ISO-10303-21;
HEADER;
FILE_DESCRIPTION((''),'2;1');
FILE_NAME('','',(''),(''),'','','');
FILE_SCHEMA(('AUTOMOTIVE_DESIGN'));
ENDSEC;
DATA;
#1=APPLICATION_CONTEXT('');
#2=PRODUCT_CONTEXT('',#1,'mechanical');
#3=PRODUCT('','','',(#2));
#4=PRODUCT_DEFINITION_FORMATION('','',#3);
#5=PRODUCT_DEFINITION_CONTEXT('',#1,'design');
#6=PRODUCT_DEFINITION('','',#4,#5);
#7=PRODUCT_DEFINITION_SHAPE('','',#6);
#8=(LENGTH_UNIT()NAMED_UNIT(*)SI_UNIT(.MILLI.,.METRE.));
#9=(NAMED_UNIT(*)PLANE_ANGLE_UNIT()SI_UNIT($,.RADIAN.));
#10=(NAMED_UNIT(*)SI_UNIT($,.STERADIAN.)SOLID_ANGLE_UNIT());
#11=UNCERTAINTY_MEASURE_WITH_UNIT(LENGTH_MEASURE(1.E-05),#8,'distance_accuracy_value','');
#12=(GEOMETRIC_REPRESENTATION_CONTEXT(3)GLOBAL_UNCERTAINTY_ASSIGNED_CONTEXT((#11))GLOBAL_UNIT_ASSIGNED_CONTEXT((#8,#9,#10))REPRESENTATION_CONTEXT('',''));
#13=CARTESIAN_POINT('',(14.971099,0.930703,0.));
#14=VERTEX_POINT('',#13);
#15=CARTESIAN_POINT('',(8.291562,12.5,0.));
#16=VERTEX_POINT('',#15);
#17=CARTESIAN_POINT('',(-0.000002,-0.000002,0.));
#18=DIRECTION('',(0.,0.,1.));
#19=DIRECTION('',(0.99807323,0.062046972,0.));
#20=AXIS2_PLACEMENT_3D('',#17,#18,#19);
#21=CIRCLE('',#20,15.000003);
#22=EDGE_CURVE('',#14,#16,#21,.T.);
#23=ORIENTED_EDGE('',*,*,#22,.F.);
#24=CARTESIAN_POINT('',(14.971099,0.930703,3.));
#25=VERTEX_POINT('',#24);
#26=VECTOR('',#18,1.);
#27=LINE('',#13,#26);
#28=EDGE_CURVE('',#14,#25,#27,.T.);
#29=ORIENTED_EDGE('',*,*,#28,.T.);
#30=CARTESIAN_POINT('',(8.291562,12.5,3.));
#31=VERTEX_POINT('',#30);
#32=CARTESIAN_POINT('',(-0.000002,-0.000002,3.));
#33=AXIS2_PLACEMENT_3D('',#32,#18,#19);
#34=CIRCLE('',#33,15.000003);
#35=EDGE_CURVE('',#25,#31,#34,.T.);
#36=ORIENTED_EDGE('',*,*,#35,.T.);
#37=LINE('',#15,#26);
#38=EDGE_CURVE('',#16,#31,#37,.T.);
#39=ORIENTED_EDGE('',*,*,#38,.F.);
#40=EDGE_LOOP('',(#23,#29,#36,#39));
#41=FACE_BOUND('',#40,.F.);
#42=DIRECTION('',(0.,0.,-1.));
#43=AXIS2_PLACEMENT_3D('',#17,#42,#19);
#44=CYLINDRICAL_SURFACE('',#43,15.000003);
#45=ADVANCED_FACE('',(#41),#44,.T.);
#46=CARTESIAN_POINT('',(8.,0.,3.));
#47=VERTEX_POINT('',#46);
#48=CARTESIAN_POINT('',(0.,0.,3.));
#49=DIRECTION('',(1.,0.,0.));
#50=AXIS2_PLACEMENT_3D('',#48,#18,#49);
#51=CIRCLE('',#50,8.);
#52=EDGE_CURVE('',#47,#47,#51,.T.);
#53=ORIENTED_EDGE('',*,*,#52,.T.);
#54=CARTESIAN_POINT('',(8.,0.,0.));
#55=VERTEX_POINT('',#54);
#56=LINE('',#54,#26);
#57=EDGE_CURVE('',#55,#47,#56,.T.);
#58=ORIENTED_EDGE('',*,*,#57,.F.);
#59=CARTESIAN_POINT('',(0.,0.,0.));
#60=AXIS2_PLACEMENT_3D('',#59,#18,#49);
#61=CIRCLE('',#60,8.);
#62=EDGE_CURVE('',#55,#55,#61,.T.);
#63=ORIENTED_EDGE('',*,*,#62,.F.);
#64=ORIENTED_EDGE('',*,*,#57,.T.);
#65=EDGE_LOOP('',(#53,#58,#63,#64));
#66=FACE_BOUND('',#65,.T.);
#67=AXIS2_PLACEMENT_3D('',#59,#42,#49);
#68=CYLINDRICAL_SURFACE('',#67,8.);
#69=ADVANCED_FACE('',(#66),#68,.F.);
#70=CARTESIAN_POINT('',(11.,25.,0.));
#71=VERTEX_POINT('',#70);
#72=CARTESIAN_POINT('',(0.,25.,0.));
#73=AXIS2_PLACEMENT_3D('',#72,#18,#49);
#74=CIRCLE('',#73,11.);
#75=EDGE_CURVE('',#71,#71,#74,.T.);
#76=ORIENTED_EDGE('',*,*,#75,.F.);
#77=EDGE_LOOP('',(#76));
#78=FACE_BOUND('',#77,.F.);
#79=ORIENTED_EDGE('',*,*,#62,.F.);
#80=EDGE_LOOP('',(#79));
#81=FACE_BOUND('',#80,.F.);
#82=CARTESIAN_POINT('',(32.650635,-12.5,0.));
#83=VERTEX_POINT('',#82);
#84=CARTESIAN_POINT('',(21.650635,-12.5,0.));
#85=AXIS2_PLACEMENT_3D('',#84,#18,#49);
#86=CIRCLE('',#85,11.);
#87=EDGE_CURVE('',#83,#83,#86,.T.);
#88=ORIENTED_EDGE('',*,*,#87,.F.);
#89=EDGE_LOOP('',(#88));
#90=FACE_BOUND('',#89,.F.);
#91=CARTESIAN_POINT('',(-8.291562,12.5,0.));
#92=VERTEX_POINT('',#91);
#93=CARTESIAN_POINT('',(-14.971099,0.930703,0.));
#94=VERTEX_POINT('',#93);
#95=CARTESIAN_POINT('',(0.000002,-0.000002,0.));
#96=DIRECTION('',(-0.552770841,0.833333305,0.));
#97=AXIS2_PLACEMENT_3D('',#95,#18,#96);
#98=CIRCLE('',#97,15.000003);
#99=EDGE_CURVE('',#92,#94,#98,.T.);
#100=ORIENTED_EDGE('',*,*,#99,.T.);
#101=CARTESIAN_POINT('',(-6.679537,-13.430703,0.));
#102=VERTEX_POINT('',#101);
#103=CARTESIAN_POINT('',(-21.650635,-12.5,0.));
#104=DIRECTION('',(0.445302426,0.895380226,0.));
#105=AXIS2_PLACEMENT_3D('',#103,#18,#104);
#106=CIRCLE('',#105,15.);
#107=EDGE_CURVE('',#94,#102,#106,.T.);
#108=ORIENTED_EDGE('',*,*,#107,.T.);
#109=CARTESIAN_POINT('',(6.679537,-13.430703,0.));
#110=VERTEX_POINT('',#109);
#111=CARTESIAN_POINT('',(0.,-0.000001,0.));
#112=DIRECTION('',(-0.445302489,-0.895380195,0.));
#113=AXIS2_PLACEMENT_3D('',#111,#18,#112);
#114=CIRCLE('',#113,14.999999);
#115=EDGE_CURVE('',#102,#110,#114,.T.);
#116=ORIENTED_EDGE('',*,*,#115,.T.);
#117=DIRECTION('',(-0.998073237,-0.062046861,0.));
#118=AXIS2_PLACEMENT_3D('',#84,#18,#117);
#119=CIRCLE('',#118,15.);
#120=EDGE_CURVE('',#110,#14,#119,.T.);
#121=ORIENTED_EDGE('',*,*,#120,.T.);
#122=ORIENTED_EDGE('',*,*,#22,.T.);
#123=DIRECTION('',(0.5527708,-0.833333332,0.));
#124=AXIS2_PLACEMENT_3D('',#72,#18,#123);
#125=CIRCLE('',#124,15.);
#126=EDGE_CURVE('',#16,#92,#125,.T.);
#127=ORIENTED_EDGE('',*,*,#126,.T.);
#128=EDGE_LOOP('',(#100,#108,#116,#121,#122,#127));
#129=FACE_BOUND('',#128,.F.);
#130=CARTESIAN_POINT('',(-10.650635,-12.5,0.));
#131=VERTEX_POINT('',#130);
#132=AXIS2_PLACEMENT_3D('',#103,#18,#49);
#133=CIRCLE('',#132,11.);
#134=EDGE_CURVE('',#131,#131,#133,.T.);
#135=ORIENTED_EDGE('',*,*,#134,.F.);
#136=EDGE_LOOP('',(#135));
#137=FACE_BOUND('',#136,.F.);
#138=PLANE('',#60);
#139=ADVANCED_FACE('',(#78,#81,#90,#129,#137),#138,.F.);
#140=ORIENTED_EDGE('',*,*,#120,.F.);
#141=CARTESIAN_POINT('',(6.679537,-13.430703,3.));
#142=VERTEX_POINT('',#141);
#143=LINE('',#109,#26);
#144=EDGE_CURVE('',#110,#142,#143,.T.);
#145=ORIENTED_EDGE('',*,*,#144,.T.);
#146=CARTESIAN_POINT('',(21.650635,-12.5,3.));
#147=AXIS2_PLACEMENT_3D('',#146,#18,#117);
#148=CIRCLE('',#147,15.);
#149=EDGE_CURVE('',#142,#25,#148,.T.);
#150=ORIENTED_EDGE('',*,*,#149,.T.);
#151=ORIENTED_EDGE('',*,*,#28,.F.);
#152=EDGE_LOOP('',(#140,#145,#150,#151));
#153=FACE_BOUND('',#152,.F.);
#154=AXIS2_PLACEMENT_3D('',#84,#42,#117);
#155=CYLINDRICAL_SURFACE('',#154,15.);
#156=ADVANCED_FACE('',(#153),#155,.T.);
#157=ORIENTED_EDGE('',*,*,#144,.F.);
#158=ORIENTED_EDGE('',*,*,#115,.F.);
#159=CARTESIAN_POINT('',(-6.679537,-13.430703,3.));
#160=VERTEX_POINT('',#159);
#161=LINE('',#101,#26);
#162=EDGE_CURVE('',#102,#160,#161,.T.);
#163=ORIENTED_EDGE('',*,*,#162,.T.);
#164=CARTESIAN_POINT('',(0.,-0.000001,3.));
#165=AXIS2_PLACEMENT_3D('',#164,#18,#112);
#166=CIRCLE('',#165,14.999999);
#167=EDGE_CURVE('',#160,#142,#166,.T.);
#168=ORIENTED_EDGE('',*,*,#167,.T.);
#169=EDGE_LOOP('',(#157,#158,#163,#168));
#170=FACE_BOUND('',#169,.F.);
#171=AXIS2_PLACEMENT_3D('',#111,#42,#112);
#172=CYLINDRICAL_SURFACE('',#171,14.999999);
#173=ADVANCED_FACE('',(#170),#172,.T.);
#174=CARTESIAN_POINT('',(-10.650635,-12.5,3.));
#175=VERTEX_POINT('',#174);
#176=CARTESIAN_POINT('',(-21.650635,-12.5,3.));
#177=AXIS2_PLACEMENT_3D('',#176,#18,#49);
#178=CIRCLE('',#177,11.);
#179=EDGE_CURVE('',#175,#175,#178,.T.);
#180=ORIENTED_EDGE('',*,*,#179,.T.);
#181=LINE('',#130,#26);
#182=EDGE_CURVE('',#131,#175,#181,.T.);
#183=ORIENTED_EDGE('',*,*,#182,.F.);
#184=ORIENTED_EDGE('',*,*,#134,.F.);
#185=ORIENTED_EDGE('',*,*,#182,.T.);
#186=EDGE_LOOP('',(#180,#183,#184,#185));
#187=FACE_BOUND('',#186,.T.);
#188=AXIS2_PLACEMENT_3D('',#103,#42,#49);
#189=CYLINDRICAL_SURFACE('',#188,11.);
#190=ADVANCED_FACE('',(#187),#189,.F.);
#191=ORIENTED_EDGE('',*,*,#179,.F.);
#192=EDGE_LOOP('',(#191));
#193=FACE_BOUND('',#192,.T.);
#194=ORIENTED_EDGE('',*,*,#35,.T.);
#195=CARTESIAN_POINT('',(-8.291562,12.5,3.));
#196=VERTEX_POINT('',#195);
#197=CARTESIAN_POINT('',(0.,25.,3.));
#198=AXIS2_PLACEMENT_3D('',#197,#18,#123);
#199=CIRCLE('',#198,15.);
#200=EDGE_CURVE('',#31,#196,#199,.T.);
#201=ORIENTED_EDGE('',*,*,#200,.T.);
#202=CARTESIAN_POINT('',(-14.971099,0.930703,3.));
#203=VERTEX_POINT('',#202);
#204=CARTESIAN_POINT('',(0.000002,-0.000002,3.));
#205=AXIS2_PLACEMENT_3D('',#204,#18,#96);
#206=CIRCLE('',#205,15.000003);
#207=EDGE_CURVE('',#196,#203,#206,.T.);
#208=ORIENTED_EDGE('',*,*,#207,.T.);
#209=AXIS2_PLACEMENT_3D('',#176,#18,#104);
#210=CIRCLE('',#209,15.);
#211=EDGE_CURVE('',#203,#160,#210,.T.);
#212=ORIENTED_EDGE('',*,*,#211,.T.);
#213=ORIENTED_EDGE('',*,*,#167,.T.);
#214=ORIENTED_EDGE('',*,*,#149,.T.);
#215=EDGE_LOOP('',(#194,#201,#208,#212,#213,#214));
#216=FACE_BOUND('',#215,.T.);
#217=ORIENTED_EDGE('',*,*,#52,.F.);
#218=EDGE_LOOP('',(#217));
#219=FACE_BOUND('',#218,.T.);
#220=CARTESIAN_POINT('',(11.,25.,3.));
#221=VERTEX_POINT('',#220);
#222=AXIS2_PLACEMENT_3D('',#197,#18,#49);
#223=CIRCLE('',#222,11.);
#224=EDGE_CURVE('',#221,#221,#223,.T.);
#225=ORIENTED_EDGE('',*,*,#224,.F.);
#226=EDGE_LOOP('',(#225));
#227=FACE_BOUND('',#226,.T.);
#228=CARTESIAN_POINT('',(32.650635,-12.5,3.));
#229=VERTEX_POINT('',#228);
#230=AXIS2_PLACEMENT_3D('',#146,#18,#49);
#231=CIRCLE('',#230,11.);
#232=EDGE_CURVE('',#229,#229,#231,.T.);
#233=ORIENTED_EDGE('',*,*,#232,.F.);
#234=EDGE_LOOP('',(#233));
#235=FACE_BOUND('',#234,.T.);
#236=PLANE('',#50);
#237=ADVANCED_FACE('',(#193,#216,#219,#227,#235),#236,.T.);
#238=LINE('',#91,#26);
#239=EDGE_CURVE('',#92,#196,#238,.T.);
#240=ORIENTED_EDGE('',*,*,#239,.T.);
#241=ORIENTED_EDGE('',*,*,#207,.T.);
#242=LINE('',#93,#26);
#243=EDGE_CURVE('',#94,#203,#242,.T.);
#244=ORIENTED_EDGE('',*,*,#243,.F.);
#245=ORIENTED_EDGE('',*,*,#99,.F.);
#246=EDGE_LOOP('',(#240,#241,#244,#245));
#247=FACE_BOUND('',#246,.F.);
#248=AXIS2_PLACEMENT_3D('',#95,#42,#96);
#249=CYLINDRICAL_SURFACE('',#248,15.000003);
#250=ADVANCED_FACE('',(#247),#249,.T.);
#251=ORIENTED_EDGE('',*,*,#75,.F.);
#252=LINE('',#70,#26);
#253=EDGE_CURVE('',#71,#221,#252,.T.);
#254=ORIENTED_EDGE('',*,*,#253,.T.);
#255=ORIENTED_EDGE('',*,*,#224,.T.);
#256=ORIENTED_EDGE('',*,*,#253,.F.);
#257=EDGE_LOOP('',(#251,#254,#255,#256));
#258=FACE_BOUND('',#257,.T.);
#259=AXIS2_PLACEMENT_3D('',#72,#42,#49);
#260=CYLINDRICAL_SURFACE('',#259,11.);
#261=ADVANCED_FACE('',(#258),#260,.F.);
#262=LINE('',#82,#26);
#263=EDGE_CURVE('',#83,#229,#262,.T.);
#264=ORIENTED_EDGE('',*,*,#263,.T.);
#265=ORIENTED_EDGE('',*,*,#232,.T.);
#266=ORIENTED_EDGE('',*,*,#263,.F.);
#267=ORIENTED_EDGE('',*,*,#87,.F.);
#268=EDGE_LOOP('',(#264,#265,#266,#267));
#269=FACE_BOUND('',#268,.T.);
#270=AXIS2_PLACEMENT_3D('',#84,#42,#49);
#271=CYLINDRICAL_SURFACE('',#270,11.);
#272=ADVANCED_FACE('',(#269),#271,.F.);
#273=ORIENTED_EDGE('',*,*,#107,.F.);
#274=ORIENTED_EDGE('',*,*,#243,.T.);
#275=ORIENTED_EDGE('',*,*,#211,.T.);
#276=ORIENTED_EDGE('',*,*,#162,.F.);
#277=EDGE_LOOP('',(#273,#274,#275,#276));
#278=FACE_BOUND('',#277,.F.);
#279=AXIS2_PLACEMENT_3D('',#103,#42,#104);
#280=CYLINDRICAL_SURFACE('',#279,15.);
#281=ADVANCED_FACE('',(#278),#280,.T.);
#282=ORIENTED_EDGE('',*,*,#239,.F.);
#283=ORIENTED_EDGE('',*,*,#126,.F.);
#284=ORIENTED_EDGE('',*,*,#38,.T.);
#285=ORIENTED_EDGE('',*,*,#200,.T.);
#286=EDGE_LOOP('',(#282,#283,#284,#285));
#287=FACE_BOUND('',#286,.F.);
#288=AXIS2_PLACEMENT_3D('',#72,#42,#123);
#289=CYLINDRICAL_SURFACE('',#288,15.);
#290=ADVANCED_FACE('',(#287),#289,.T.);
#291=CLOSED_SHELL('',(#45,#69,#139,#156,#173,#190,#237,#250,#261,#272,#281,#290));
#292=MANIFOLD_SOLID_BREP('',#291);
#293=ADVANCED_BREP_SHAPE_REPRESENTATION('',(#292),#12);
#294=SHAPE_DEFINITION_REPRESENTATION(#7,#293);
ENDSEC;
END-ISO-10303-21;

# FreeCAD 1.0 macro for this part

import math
import FreeCAD as App
import Part
import Sketcher
from FreeCAD import Vector

doc = App.newDocument("Part")
body = doc.addObject("PartDesign::Body", "Body")

# Sketch on XY plane
sketch1 = body.newObject("Sketcher::SketchObject", "Sketch")
sketch1.AttachmentSupport = (doc.getObject("XY_Plane"), [""])
sketch1.MapMode = "FlatFace"
sketch1.addGeometry([
    Part.ArcOfCircle(Part.Circle(Vector(0, 25, 0), Vector(0, 0, 1), 15), math.radians(-56), math.radians(236)),  # 0
    Part.ArcOfCircle(Part.Circle(Vector(0, 0, 0), Vector(0, 0, 1), 15), math.radians(124), math.radians(176)),  # 1
    Part.ArcOfCircle(Part.Circle(Vector(-22, -13, 0), Vector(0, 0, 1), 15), math.radians(64), math.radians(356)),  # 2
    Part.ArcOfCircle(Part.Circle(Vector(0, 0, 0), Vector(0, 0, 1), 15), math.radians(-116), math.radians(-64)),  # 3
    Part.ArcOfCircle(Part.Circle(Vector(22, -13, 0), Vector(0, 0, 1), 15), math.radians(-176), math.radians(116)),  # 4
    Part.ArcOfCircle(Part.Circle(Vector(0, 0, 0), Vector(0, 0, 1), 15), math.radians(4), math.radians(56)),  # 5
    Part.Circle(Vector(-22, -12, 0), Vector(0, 0, 1), 11),  # 6
    Part.Circle(Vector(0, 0, 0), Vector(0, 0, 1), 8),  # 7
    Part.Circle(Vector(22, -12, 0), Vector(0, 0, 1), 11),  # 8
    Part.Circle(Vector(0, 25, 0), Vector(0, 0, 1), 11),  # 9
], False)
sketch1.addConstraint([
    Sketcher.Constraint("Coincident", 0, 2, 1, 1),
    Sketcher.Constraint("Coincident", 1, 2, 2, 1),
    Sketcher.Constraint("Coincident", 2, 2, 3, 1),
    Sketcher.Constraint("Coincident", 3, 2, 4, 1),
    Sketcher.Constraint("Coincident", 4, 2, 5, 1),
    Sketcher.Constraint("Coincident", 5, 2, 0, 1),
    Sketcher.Constraint("Coincident", 1, 3, -1, 1),
    Sketcher.Constraint("Coincident", 3, 3, -1, 1),
    Sketcher.Constraint("Coincident", 5, 3, -1, 1),
    Sketcher.Constraint("Coincident", 7, 3, -1, 1),
    Sketcher.Constraint("Coincident", 6, 3, 2, 3),
    Sketcher.Constraint("Coincident", 8, 3, 4, 3),
    Sketcher.Constraint("Coincident", 9, 3, 0, 3),
    Sketcher.Constraint("Equal", 0, 2),
    Sketcher.Constraint("Equal", 2, 3),
    Sketcher.Constraint("Equal", 3, 4),
    Sketcher.Constraint("Equal", 1, 5),
    Sketcher.Constraint("Equal", 6, 8),
    Sketcher.Constraint("Equal", 8, 9),
    Sketcher.Constraint("Symmetric", 2, 3, 4, 3, -2),
    Sketcher.Constraint("PointOnObject", 0, 3, -2),
    Sketcher.Constraint("Diameter", 6, 22.0),
    Sketcher.Constraint("Diameter", 7, 16.0),
    Sketcher.Constraint("Radius", 0, 15.0),
    Sketcher.Constraint("DistanceY", -1, 1, 0, 3, 25.0),
    Sketcher.Constraint("DistanceY", 2, 3, -1, 1, 12.5),
    Sketcher.Constraint("DistanceY", -1, 1, 0, 2, 12.5),
    Sketcher.Constraint("DistanceX", 1, 2, -1, 1, 14.971099),
])
pad1 = body.newObject("PartDesign::Pad", "Pad")
pad1.Profile = sketch1
pad1.Length = 3

doc.recompute()
